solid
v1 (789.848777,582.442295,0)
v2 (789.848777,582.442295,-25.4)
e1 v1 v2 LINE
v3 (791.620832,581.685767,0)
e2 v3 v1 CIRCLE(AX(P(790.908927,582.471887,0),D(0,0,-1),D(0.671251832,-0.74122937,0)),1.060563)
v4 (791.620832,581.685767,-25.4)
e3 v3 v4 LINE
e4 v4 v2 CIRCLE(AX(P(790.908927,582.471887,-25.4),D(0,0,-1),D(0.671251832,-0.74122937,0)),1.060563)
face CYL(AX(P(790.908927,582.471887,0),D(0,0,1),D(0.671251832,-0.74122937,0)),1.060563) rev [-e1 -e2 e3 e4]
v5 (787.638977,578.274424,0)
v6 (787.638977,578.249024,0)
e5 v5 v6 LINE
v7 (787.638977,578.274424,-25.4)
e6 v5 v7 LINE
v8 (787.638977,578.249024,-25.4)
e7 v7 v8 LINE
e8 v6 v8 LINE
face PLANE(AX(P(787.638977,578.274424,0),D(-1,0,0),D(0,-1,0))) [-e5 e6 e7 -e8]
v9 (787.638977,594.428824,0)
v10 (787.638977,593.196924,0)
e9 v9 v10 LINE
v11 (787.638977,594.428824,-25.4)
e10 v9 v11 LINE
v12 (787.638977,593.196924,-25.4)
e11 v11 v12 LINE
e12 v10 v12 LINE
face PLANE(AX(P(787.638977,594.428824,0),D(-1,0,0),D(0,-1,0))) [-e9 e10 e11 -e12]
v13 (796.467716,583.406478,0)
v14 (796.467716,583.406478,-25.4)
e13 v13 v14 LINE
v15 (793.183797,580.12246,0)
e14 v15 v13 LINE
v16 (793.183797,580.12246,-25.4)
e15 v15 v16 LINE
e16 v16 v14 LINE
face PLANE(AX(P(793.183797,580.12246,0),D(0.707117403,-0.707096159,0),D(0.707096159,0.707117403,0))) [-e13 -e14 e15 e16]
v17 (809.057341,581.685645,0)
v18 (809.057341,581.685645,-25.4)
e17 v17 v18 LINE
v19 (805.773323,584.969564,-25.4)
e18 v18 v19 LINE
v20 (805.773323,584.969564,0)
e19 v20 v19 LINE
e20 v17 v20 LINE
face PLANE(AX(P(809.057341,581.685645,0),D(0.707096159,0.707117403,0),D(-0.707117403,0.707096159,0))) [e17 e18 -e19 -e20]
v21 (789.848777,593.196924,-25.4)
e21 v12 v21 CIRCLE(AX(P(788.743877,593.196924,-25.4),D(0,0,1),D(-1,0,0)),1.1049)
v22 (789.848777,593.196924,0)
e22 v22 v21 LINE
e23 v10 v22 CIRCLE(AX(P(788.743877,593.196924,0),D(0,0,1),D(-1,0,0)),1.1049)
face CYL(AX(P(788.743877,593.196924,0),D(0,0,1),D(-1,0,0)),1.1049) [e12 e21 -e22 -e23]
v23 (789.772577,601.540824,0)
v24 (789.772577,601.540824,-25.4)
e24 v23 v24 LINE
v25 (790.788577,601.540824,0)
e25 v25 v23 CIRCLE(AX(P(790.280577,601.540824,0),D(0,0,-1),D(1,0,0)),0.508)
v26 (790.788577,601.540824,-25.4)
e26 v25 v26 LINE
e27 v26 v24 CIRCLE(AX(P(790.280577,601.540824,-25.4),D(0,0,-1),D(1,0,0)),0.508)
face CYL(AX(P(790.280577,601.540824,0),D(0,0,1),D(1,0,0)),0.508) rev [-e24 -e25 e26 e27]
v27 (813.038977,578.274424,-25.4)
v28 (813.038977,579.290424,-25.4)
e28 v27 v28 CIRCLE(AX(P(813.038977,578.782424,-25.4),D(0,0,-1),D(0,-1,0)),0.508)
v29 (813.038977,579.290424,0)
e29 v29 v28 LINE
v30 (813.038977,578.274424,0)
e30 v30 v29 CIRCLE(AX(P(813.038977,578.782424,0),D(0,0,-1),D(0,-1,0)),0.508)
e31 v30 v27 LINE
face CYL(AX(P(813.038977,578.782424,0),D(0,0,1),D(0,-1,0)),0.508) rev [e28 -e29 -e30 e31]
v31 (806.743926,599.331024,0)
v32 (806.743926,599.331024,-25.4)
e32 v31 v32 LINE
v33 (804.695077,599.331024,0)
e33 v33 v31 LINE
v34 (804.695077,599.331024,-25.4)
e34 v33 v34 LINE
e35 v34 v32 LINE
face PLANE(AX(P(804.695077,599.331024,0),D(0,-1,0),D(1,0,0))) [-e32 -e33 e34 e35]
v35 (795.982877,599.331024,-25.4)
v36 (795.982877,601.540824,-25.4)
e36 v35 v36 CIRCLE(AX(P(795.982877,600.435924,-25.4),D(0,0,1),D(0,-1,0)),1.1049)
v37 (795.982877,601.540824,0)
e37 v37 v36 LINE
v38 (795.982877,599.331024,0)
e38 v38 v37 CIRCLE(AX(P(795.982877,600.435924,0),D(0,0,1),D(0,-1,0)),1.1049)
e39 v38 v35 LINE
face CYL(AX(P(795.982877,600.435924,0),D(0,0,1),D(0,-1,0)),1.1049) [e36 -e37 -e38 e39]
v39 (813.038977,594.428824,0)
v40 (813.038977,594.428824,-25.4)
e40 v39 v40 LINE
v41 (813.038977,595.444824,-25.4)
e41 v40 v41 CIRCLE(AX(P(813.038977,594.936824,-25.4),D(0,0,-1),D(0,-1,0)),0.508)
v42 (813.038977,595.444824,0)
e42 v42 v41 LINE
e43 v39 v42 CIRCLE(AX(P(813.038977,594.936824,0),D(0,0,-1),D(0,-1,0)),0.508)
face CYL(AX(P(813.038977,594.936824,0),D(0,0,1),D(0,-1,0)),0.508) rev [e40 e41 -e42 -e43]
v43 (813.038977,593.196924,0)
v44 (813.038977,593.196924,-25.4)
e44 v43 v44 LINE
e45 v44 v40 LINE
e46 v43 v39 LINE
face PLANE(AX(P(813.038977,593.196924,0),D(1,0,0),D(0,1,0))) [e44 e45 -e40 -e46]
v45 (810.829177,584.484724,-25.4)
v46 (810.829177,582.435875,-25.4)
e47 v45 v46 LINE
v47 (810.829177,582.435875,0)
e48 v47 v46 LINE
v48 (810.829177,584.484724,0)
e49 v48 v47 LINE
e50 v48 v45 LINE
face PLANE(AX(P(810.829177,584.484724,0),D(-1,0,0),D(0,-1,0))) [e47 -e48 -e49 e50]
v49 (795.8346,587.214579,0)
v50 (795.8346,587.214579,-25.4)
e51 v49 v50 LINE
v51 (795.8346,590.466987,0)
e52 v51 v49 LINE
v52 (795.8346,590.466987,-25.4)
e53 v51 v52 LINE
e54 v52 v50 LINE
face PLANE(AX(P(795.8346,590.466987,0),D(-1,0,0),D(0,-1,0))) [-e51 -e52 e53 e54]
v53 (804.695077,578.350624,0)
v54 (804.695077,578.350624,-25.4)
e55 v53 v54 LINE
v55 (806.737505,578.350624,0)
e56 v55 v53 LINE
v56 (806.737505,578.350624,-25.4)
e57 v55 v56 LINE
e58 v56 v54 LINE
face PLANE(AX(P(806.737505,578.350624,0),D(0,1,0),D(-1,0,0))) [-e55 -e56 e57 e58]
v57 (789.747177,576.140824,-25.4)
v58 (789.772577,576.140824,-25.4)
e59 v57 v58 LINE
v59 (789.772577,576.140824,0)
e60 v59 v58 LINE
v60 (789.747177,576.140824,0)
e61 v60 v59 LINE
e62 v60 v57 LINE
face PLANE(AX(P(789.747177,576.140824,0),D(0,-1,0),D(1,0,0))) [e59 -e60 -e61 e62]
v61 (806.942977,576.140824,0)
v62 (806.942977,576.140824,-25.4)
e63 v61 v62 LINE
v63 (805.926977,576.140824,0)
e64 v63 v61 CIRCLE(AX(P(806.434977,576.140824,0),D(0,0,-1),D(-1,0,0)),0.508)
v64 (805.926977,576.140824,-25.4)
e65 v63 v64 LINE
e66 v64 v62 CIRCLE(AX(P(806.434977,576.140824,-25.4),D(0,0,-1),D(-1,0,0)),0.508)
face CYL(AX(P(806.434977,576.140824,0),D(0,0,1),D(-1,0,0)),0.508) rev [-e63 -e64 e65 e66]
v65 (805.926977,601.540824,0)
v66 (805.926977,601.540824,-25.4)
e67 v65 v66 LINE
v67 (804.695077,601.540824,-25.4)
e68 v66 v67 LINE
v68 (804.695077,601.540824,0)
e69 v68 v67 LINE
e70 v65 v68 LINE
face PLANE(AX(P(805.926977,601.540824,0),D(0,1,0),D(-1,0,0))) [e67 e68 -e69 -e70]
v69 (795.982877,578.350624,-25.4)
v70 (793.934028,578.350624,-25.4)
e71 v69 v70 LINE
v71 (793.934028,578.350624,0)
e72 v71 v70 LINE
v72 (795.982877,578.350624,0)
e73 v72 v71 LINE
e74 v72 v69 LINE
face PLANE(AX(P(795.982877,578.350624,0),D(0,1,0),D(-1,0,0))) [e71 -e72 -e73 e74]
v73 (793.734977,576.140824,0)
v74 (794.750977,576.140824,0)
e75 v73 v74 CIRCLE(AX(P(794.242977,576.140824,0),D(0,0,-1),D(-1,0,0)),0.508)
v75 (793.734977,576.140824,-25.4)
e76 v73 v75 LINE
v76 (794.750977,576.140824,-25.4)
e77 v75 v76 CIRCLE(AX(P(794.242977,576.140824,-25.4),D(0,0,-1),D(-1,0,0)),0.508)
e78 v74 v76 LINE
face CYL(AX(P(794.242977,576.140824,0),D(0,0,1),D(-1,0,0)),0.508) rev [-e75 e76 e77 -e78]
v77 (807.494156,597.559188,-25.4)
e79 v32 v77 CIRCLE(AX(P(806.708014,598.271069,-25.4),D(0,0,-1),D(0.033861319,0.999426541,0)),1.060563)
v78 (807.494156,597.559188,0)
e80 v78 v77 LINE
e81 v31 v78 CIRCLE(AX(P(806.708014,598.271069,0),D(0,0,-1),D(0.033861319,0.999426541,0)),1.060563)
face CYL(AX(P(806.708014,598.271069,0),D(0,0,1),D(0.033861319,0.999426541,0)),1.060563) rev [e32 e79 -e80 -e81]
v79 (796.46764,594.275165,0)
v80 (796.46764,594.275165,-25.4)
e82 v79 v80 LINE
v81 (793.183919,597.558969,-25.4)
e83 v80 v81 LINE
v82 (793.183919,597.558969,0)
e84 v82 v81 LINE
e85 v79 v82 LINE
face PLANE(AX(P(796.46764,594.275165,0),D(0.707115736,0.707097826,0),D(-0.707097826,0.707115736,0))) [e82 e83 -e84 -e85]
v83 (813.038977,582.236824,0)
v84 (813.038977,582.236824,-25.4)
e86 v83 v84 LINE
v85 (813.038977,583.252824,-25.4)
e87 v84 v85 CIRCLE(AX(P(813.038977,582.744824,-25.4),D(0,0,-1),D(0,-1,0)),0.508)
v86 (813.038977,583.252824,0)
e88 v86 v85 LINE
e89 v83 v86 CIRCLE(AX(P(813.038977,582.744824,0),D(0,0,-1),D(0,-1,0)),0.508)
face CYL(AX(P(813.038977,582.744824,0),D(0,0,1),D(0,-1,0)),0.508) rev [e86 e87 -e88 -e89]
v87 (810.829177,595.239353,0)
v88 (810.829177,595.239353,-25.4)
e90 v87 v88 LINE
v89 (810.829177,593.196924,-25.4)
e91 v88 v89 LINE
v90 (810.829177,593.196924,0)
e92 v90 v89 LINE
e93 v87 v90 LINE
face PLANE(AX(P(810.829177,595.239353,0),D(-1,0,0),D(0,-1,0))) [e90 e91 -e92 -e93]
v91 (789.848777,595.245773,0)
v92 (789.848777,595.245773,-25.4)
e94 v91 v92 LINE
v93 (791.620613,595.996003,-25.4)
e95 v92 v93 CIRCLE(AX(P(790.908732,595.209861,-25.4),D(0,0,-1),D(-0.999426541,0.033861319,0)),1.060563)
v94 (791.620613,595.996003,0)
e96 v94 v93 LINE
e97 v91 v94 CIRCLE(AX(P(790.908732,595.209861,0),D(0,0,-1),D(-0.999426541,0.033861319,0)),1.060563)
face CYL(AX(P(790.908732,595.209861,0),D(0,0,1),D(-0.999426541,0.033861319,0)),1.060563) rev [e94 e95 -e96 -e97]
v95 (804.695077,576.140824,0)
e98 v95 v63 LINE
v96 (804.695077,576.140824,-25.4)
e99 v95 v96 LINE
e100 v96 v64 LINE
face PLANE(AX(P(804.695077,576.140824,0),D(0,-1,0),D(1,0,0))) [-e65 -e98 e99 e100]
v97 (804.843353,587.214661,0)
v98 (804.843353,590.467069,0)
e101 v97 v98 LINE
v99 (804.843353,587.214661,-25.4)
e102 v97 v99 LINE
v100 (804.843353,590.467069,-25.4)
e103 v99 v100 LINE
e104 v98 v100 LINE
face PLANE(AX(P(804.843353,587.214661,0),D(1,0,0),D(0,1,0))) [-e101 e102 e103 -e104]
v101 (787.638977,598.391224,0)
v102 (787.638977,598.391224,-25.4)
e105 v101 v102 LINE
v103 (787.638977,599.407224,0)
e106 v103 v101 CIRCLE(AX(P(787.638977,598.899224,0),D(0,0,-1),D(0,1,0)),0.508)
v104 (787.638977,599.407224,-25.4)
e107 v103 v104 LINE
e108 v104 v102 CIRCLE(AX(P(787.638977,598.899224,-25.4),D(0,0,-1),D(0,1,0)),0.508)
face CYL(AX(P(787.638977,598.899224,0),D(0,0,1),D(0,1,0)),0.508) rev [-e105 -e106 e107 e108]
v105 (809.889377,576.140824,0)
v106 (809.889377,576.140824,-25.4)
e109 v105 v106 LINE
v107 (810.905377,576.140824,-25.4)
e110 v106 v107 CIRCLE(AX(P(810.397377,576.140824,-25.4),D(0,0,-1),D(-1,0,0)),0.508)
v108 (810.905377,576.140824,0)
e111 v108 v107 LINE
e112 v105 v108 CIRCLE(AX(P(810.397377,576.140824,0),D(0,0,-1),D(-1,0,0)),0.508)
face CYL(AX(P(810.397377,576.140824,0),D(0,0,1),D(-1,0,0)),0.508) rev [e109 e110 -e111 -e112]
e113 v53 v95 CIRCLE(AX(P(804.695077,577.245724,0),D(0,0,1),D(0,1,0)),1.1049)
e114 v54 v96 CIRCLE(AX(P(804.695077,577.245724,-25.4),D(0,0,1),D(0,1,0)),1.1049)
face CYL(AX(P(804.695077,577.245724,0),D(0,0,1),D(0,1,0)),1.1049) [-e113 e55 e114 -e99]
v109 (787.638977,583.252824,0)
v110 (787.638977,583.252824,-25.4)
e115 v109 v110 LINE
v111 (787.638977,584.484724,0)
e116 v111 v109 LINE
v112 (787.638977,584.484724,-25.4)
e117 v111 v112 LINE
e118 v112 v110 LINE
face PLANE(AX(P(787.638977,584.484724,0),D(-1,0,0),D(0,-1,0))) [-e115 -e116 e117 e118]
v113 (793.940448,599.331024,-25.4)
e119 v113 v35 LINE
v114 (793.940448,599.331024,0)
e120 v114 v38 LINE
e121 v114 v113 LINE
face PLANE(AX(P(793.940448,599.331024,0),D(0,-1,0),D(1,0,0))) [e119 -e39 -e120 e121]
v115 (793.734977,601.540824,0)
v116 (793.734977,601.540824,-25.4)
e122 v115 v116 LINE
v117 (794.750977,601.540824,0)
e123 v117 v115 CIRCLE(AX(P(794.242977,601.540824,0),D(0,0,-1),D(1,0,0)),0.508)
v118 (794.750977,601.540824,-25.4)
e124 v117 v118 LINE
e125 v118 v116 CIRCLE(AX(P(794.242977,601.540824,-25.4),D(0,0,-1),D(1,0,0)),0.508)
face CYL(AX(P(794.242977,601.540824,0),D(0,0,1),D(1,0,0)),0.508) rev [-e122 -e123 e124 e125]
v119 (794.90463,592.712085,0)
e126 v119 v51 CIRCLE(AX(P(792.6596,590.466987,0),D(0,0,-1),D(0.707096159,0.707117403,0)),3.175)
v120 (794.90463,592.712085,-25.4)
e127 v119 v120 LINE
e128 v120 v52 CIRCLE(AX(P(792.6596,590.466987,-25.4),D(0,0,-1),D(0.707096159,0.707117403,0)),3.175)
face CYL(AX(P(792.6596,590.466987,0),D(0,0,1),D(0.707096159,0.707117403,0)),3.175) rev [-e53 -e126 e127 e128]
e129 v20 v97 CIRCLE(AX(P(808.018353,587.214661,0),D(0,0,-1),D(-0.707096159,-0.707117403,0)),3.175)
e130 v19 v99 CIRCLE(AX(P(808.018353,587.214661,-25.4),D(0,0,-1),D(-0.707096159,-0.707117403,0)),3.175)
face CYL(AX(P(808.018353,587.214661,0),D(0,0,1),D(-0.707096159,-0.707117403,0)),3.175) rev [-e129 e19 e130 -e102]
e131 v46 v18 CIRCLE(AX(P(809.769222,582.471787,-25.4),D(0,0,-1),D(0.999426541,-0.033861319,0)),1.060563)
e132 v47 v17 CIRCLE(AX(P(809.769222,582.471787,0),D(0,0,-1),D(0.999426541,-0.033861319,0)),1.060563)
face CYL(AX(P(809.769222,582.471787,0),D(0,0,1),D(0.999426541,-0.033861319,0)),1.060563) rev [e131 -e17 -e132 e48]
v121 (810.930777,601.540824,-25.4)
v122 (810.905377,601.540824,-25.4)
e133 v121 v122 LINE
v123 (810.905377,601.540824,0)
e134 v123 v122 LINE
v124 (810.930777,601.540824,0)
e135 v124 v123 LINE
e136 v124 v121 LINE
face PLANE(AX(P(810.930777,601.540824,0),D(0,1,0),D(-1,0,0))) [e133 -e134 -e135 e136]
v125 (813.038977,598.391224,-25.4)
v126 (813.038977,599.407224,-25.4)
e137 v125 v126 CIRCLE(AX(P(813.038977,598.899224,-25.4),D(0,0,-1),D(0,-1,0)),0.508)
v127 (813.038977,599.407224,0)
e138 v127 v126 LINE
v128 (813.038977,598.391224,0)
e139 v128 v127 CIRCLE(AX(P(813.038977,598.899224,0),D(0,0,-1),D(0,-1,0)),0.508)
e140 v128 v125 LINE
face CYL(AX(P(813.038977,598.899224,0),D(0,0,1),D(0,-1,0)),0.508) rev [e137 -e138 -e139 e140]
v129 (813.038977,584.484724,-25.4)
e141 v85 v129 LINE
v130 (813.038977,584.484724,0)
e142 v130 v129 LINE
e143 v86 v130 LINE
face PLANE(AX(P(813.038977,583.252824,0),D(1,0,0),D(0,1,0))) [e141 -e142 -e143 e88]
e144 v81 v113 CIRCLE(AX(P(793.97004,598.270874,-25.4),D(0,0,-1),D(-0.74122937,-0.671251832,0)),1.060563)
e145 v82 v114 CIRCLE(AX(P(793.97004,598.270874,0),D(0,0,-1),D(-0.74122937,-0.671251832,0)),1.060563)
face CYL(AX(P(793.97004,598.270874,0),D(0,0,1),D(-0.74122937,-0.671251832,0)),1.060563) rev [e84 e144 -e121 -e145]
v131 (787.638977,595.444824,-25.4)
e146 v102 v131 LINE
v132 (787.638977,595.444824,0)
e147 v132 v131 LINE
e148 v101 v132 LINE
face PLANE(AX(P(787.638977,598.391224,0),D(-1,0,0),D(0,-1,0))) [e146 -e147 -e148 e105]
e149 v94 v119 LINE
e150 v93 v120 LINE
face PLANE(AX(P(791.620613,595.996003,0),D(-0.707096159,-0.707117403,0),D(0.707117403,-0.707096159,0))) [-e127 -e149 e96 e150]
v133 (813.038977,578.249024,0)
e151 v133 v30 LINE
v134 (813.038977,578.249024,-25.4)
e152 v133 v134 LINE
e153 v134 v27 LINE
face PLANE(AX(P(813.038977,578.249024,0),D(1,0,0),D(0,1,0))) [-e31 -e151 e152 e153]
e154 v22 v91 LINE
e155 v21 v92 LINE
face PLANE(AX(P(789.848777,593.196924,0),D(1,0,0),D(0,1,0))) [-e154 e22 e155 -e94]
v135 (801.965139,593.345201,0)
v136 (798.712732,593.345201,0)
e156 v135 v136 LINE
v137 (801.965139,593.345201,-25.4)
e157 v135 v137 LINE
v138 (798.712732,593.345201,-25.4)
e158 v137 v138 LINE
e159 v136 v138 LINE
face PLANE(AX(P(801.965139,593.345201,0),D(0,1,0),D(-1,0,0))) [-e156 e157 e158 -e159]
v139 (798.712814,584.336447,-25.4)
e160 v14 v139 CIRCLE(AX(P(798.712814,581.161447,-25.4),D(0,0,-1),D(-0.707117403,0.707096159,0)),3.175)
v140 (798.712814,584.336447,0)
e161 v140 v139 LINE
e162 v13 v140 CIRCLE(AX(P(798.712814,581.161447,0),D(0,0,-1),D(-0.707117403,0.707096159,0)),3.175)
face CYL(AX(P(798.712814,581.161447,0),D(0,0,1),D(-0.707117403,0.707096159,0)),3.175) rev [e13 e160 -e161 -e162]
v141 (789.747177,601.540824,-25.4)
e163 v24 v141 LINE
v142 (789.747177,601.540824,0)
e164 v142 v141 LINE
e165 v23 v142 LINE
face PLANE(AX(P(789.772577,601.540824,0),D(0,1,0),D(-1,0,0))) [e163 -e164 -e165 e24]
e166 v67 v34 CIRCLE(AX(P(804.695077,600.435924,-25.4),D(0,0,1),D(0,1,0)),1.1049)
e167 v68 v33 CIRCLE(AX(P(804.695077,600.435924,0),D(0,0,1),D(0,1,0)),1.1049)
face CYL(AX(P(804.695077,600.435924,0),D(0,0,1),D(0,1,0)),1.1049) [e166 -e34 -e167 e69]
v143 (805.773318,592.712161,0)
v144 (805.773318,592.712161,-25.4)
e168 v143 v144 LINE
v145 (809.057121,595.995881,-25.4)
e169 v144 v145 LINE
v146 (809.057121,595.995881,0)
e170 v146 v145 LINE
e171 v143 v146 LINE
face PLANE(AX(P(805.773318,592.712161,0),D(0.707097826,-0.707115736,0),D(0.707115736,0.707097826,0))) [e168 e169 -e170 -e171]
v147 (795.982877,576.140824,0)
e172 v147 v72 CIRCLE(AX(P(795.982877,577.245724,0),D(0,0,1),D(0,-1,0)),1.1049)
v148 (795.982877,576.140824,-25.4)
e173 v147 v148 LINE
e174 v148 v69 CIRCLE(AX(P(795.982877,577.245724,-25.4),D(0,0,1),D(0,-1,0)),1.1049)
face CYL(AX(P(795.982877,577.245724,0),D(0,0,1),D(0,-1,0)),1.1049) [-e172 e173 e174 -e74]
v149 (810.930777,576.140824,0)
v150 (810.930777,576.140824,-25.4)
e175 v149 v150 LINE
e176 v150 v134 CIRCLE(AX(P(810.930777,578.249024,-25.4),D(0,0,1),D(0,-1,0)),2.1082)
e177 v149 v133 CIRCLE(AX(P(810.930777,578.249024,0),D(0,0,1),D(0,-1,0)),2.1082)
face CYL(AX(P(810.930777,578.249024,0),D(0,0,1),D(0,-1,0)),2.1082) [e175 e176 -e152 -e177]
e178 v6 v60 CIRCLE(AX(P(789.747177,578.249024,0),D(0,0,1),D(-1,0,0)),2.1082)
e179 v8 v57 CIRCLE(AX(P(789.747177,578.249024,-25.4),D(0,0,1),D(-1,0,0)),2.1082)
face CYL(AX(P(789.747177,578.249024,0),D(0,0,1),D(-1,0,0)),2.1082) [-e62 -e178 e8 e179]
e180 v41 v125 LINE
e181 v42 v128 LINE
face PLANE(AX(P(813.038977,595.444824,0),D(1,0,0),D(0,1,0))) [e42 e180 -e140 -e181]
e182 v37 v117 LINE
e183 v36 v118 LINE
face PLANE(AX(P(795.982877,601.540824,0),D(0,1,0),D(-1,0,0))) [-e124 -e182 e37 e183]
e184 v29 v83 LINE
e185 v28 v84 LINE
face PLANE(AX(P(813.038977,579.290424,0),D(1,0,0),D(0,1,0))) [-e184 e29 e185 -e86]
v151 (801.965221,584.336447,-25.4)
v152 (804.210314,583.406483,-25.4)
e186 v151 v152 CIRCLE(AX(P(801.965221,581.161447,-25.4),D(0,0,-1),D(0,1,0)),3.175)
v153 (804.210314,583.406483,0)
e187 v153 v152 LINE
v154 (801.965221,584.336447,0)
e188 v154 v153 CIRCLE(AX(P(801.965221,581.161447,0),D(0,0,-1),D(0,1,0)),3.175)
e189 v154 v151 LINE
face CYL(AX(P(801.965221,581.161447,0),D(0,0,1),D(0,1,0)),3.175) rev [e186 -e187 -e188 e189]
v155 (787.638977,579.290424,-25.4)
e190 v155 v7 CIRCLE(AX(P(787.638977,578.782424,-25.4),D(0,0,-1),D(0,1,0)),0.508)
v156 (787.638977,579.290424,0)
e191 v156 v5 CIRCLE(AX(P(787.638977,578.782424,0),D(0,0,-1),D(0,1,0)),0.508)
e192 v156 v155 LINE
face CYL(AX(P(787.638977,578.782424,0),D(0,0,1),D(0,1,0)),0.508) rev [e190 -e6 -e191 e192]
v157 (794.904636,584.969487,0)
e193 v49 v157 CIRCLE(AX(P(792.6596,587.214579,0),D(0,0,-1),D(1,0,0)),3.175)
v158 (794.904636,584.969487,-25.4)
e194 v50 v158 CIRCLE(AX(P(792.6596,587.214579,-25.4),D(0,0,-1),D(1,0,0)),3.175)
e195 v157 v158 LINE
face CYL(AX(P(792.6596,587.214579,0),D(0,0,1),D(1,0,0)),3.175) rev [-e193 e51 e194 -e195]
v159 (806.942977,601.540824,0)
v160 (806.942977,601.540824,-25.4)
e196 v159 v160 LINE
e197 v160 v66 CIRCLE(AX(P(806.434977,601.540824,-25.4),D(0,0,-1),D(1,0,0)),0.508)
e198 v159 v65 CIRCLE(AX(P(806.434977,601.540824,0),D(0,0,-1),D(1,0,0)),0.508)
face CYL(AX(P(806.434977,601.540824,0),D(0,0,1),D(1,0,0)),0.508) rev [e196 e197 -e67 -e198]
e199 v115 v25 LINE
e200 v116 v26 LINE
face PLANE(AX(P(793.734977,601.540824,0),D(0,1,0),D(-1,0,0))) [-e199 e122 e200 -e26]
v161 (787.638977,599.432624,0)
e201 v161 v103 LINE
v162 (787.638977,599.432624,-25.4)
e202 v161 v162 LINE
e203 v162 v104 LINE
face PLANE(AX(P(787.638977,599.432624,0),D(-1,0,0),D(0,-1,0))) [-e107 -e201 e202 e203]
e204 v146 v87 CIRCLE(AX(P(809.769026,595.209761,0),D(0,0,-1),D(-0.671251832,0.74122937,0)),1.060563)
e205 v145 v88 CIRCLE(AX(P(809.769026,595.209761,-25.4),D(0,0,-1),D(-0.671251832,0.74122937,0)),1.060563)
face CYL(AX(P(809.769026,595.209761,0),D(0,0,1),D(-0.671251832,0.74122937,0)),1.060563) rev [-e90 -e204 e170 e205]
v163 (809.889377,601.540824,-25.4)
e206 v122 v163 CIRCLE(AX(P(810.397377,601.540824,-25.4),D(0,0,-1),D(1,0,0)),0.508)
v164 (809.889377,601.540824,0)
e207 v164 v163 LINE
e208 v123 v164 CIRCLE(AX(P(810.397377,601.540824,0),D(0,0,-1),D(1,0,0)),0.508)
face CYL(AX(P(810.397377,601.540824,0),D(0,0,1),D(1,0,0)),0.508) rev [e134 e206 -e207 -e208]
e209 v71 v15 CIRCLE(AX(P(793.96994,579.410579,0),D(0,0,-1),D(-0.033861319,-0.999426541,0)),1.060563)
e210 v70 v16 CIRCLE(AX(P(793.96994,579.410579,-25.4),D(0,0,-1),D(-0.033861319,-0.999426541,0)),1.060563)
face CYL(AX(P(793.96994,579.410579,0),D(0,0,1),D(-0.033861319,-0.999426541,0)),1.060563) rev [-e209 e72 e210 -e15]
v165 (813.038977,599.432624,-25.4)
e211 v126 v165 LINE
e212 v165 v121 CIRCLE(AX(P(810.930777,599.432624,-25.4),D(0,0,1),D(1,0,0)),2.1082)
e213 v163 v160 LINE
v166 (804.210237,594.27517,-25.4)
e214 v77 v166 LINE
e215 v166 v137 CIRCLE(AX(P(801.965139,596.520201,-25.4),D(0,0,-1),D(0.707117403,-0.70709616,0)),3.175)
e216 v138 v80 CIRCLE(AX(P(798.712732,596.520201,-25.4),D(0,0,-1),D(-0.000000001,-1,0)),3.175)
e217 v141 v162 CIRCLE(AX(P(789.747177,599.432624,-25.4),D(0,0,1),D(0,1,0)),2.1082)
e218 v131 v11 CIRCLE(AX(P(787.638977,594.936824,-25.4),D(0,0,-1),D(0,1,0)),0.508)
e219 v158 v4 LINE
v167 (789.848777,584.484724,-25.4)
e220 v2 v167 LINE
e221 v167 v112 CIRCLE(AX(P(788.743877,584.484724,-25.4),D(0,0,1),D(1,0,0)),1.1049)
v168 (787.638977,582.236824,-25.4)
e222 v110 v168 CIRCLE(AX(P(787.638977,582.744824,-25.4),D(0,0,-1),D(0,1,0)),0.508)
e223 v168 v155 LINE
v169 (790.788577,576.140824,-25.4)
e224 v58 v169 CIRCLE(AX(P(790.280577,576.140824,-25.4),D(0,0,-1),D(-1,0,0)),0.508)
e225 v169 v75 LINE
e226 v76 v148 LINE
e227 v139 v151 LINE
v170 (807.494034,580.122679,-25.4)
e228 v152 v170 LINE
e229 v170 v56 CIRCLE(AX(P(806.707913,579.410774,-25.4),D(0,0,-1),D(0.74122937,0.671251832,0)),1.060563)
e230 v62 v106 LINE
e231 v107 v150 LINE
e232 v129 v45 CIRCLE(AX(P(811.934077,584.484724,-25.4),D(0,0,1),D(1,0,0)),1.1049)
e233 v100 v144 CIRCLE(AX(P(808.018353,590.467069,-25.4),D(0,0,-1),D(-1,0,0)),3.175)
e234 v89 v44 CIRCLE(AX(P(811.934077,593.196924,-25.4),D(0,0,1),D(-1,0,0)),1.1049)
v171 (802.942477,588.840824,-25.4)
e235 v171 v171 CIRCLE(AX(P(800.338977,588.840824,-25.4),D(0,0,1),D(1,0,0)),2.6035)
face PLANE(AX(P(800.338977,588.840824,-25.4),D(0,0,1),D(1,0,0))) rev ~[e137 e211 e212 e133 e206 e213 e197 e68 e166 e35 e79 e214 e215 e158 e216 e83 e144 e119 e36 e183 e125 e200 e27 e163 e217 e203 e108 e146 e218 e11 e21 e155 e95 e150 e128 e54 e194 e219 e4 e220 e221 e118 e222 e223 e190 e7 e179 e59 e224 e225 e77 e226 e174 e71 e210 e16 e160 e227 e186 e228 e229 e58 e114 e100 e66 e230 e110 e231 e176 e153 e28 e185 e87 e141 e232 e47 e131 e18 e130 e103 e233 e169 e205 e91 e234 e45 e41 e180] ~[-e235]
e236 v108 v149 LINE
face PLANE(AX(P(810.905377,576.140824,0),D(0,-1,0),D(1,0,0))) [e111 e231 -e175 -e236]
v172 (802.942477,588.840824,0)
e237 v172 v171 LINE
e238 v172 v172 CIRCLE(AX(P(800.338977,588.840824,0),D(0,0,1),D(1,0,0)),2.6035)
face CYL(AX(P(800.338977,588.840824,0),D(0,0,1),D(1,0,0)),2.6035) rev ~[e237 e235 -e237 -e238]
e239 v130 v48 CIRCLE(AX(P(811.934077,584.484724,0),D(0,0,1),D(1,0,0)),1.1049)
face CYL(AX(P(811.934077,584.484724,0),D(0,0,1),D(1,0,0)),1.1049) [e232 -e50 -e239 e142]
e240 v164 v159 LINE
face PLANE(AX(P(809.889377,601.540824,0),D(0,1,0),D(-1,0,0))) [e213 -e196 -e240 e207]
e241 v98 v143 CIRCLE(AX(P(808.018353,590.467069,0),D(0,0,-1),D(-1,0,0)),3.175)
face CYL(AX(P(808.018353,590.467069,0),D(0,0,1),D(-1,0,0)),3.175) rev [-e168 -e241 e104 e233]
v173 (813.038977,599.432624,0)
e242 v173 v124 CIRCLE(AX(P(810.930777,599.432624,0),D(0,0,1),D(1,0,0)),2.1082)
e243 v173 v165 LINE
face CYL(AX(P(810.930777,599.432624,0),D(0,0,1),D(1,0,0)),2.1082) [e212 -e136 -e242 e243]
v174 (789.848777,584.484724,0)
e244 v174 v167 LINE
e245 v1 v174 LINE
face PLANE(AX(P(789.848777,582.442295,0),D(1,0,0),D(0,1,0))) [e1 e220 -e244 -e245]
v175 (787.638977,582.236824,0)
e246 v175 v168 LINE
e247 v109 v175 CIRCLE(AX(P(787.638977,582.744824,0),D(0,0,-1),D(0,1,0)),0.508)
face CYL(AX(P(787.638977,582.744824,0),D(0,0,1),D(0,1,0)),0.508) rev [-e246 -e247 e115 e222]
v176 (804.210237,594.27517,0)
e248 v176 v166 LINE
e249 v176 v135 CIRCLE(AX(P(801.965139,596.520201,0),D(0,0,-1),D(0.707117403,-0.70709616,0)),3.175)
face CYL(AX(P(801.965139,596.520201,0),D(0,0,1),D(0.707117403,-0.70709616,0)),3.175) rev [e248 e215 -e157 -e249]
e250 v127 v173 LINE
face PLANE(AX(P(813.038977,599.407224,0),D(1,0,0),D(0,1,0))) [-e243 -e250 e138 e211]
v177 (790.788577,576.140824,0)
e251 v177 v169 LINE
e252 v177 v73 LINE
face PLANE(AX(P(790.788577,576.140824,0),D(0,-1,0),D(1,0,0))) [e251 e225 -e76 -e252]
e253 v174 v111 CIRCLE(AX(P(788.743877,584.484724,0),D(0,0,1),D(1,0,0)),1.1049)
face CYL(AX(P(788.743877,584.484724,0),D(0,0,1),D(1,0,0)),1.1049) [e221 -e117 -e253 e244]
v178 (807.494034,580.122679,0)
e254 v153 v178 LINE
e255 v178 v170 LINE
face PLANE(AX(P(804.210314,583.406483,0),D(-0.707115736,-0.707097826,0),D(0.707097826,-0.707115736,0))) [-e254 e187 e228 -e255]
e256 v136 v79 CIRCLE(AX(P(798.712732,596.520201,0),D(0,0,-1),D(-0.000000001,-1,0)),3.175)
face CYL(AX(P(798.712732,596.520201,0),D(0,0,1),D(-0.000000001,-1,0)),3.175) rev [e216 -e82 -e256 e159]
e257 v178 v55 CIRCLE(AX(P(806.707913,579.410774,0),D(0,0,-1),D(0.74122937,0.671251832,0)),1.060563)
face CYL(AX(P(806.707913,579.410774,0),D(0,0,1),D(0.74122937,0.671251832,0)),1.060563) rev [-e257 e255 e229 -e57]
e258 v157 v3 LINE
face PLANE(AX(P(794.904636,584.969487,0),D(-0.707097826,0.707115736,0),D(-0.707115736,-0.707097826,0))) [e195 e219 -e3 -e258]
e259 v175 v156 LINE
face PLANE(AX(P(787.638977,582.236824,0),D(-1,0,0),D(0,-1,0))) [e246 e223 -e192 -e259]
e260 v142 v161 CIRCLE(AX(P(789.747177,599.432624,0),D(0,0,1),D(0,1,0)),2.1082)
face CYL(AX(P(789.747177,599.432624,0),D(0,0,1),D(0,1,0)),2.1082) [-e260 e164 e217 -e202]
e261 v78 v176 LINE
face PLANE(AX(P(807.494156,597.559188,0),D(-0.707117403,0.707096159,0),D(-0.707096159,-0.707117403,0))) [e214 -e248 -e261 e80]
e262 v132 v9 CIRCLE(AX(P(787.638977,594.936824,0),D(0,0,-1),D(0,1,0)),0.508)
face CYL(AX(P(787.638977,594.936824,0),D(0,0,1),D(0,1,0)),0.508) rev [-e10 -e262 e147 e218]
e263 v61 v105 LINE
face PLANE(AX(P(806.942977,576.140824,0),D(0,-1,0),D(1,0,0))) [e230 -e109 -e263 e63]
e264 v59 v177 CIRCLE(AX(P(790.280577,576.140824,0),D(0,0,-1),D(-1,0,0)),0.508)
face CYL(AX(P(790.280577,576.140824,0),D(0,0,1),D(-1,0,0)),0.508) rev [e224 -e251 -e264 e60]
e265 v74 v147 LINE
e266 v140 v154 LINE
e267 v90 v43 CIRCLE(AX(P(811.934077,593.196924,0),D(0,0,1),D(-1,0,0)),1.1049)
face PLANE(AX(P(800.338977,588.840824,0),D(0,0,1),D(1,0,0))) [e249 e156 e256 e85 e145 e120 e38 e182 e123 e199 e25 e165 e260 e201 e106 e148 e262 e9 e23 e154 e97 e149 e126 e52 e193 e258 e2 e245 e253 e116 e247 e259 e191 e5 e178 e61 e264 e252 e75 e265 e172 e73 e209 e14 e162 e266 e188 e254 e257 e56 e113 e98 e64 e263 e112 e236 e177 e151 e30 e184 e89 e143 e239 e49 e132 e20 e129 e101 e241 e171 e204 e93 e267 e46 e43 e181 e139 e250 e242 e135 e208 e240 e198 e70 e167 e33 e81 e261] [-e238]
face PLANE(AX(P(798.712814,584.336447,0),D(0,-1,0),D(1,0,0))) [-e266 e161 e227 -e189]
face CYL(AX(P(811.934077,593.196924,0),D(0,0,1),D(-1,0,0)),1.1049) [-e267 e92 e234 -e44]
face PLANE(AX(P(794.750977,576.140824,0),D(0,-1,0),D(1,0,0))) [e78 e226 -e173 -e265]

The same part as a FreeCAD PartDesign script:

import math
import FreeCAD as App
import Part
import Sketcher
from FreeCAD import Vector
Q = App.Units.Quantity

doc = App.newDocument("Part")
body = doc.addObject("PartDesign::Body", "Body")

sketch1 = body.newObject("Sketcher::SketchObject", "Sketch")
sketch1.AttachmentSupport = (doc.getObject("XY_Plane"), [""])
sketch1.MapMode = "FlatFace"
sketch1.addGeometry([
    Part.LineSegment(Vector(813.038977, 579.290424, 0), Vector(813.038977, 582.236824, 0)),
    Part.ArcOfCircle(Part.Circle(Vector(813.038977, 582.744824, 0), Vector(0, 0, 1), 0.508), math.radians(90), math.radians(270)),
    Part.LineSegment(Vector(813.038977, 583.252824, 0), Vector(813.038977, 584.484724, 0)),
    Part.ArcOfCircle(Part.Circle(Vector(811.934077, 584.484724, 0), Vector(0, 0, 1), 1.1049), math.radians(0), math.radians(180)),
    Part.LineSegment(Vector(810.829177, 584.484724, 0), Vector(810.829177, 582.435875, 0)),
    Part.ArcOfCircle(Part.Circle(Vector(809.769222, 582.471787, 0), Vector(0, 0, 1), 1.060563), math.radians(-132.161999), math.radians(-1.940482)),
    Part.LineSegment(Vector(809.057341, 581.685645, 0), Vector(805.773323, 584.969564, 0)),
    Part.ArcOfCircle(Part.Circle(Vector(808.018353, 587.214661, 0), Vector(0, 0, 1), 3.175), math.radians(180), math.radians(225.000861)),
    Part.LineSegment(Vector(804.843353, 587.214661, 0), Vector(804.843353, 590.467069, 0)),
    Part.ArcOfCircle(Part.Circle(Vector(808.018353, 590.467069, 0), Vector(0, 0, 1), 3.175), math.radians(134.999274), math.radians(180)),
    Part.LineSegment(Vector(805.773318, 592.712161, 0), Vector(809.057121, 595.995881, 0)),
    Part.ArcOfCircle(Part.Circle(Vector(809.769026, 595.209761, 0), Vector(0, 0, 1), 1.060563), math.radians(1.598875), math.radians(132.163755)),
    Part.LineSegment(Vector(810.829177, 595.239353, 0), Vector(810.829177, 593.196924, 0)),
    Part.ArcOfCircle(Part.Circle(Vector(811.934077, 593.196924, 0), Vector(0, 0, 1), 1.1049), math.radians(180), math.radians(360)),
    Part.LineSegment(Vector(813.038977, 593.196924, 0), Vector(813.038977, 594.428824, 0)),
    Part.ArcOfCircle(Part.Circle(Vector(813.038977, 594.936824, 0), Vector(0, 0, 1), 0.508), math.radians(90), math.radians(270)),
    Part.LineSegment(Vector(813.038977, 595.444824, 0), Vector(813.038977, 598.391224, 0)),
    Part.ArcOfCircle(Part.Circle(Vector(813.038977, 598.899224, 0), Vector(0, 0, 1), 0.508), math.radians(90), math.radians(270)),
    Part.LineSegment(Vector(813.038977, 599.407224, 0), Vector(813.038977, 599.432624, 0)),
    Part.ArcOfCircle(Part.Circle(Vector(810.930777, 599.432624, 0), Vector(0, 0, 1), 2.1082), math.radians(0), math.radians(90)),
    Part.LineSegment(Vector(810.930777, 601.540824, 0), Vector(810.905377, 601.540824, 0)),
    Part.ArcOfCircle(Part.Circle(Vector(810.397377, 601.540824, 0), Vector(0, 0, 1), 0.508), math.radians(180), math.radians(360)),
    Part.LineSegment(Vector(809.889377, 601.540824, 0), Vector(806.942977, 601.540824, 0)),
    Part.ArcOfCircle(Part.Circle(Vector(806.434977, 601.540824, 0), Vector(0, 0, 1), 0.508), math.radians(180), math.radians(360)),
    Part.LineSegment(Vector(805.926977, 601.540824, 0), Vector(804.695077, 601.540824, 0)),
    Part.ArcOfCircle(Part.Circle(Vector(804.695077, 600.435924, 0), Vector(0, 0, 1), 1.1049), math.radians(90), math.radians(270)),
    Part.LineSegment(Vector(804.695077, 599.331024, 0), Vector(806.743926, 599.331024, 0)),
    Part.ArcOfCircle(Part.Circle(Vector(806.708014, 598.271069, 0), Vector(0, 0, 1), 1.060563), math.radians(-42.161999), math.radians(88.059518)),
    Part.LineSegment(Vector(807.494156, 597.559188, 0), Vector(804.210237, 594.27517, 0)),
    Part.ArcOfCircle(Part.Circle(Vector(801.965139, 596.520201, 0), Vector(0, 0, 1), 3.175), math.radians(-90), math.radians(-44.999139)),
    Part.LineSegment(Vector(801.965139, 593.345201, 0), Vector(798.712732, 593.345201, 0)),
    Part.ArcOfCircle(Part.Circle(Vector(798.712732, 596.520201, 0), Vector(0, 0, 1), 3.175), math.radians(-135.000726), math.radians(-90)),
    Part.LineSegment(Vector(796.46764, 594.275165, 0), Vector(793.183919, 597.558969, 0)),
    Part.ArcOfCircle(Part.Circle(Vector(793.97004, 598.270874, 0), Vector(0, 0, 1), 1.060563), math.radians(91.598875), math.radians(222.163755)),
    Part.LineSegment(Vector(793.940448, 599.331024, 0), Vector(795.982877, 599.331024, 0)),
    Part.ArcOfCircle(Part.Circle(Vector(795.982877, 600.435924, 0), Vector(0, 0, 1), 1.1049), math.radians(-90), math.radians(90)),
    Part.LineSegment(Vector(795.982877, 601.540824, 0), Vector(794.750977, 601.540824, 0)),
    Part.ArcOfCircle(Part.Circle(Vector(794.242977, 601.540824, 0), Vector(0, 0, 1), 0.508), math.radians(180), math.radians(360)),
    Part.LineSegment(Vector(793.734977, 601.540824, 0), Vector(790.788577, 601.540824, 0)),
    Part.ArcOfCircle(Part.Circle(Vector(790.280577, 601.540824, 0), Vector(0, 0, 1), 0.508), math.radians(180), math.radians(360)),
    Part.LineSegment(Vector(789.772577, 601.540824, 0), Vector(789.747177, 601.540824, 0)),
    Part.ArcOfCircle(Part.Circle(Vector(789.747177, 599.432624, 0), Vector(0, 0, 1), 2.1082), math.radians(90), math.radians(180)),
    Part.LineSegment(Vector(787.638977, 599.432624, 0), Vector(787.638977, 599.407224, 0)),
    Part.ArcOfCircle(Part.Circle(Vector(787.638977, 598.899224, 0), Vector(0, 0, 1), 0.508), math.radians(-90), math.radians(90)),
    Part.LineSegment(Vector(787.638977, 598.391224, 0), Vector(787.638977, 595.444824, 0)),
    Part.ArcOfCircle(Part.Circle(Vector(787.638977, 594.936824, 0), Vector(0, 0, 1), 0.508), math.radians(-90), math.radians(90)),
    Part.LineSegment(Vector(787.638977, 594.428824, 0), Vector(787.638977, 593.196924, 0)),
    Part.ArcOfCircle(Part.Circle(Vector(788.743877, 593.196924, 0), Vector(0, 0, 1), 1.1049), math.radians(180), math.radians(360)),
    Part.LineSegment(Vector(789.848777, 593.196924, 0), Vector(789.848777, 595.245773, 0)),
    Part.ArcOfCircle(Part.Circle(Vector(790.908732, 595.209861, 0), Vector(0, 0, 1), 1.060563), math.radians(47.838001), math.radians(178.059518)),
    Part.LineSegment(Vector(791.620613, 595.996003, 0), Vector(794.90463, 592.712085, 0)),
    Part.ArcOfCircle(Part.Circle(Vector(792.6596, 590.466987, 0), Vector(0, 0, 1), 3.175), math.radians(0), math.radians(45.000861)),
    Part.LineSegment(Vector(795.8346, 590.466987, 0), Vector(795.8346, 587.214579, 0)),
    Part.ArcOfCircle(Part.Circle(Vector(792.6596, 587.214579, 0), Vector(0, 0, 1), 3.175), math.radians(-45.000726), math.radians(0)),
    Part.LineSegment(Vector(794.904636, 584.969487, 0), Vector(791.620832, 581.685767, 0)),
    Part.ArcOfCircle(Part.Circle(Vector(790.908927, 582.471887, 0), Vector(0, 0, 1), 1.060563), math.radians(-178.401125), math.radians(-47.836245)),
    Part.LineSegment(Vector(789.848777, 582.442295, 0), Vector(789.848777, 584.484724, 0)),
    Part.ArcOfCircle(Part.Circle(Vector(788.743877, 584.484724, 0), Vector(0, 0, 1), 1.1049), math.radians(0), math.radians(180)),
    Part.LineSegment(Vector(787.638977, 584.484724, 0), Vector(787.638977, 583.252824, 0)),
    Part.ArcOfCircle(Part.Circle(Vector(787.638977, 582.744824, 0), Vector(0, 0, 1), 0.508), math.radians(-90), math.radians(90)),
    Part.LineSegment(Vector(787.638977, 582.236824, 0), Vector(787.638977, 579.290424, 0)),
    Part.ArcOfCircle(Part.Circle(Vector(787.638977, 578.782424, 0), Vector(0, 0, 1), 0.508), math.radians(-90), math.radians(90)),
    Part.LineSegment(Vector(787.638977, 578.274424, 0), Vector(787.638977, 578.249024, 0)),
    Part.ArcOfCircle(Part.Circle(Vector(789.747177, 578.249024, 0), Vector(0, 0, 1), 2.1082), math.radians(180), math.radians(270)),
    Part.LineSegment(Vector(789.747177, 576.140824, 0), Vector(789.772577, 576.140824, 0)),
    Part.ArcOfCircle(Part.Circle(Vector(790.280577, 576.140824, 0), Vector(0, 0, 1), 0.508), math.radians(0), math.radians(180)),
    Part.LineSegment(Vector(790.788577, 576.140824, 0), Vector(793.734977, 576.140824, 0)),
    Part.ArcOfCircle(Part.Circle(Vector(794.242977, 576.140824, 0), Vector(0, 0, 1), 0.508), math.radians(0), math.radians(180)),
    Part.LineSegment(Vector(794.750977, 576.140824, 0), Vector(795.982877, 576.140824, 0)),
    Part.ArcOfCircle(Part.Circle(Vector(795.982877, 577.245724, 0), Vector(0, 0, 1), 1.1049), math.radians(-90), math.radians(90)),
    Part.LineSegment(Vector(795.982877, 578.350624, 0), Vector(793.934028, 578.350624, 0)),
    Part.ArcOfCircle(Part.Circle(Vector(793.96994, 579.410579, 0), Vector(0, 0, 1), 1.060563), math.radians(137.838001), math.radians(268.059518)),
    Part.LineSegment(Vector(793.183797, 580.12246, 0), Vector(796.467716, 583.406478, 0)),
    Part.ArcOfCircle(Part.Circle(Vector(798.712814, 581.161447, 0), Vector(0, 0, 1), 3.175), math.radians(90), math.radians(135.000861)),
    Part.LineSegment(Vector(798.712814, 584.336447, 0), Vector(801.965221, 584.336447, 0)),
    Part.ArcOfCircle(Part.Circle(Vector(801.965221, 581.161447, 0), Vector(0, 0, 1), 3.175), math.radians(44.999274), math.radians(90)),
    Part.LineSegment(Vector(804.210314, 583.406483, 0), Vector(807.494034, 580.122679, 0)),
    Part.ArcOfCircle(Part.Circle(Vector(806.707913, 579.410774, 0), Vector(0, 0, 1), 1.060563), math.radians(-88.401125), math.radians(42.163755)),
    Part.LineSegment(Vector(806.737505, 578.350624, 0), Vector(804.695077, 578.350624, 0)),
    Part.ArcOfCircle(Part.Circle(Vector(804.695077, 577.245724, 0), Vector(0, 0, 1), 1.1049), math.radians(90), math.radians(270)),
    Part.LineSegment(Vector(804.695077, 576.140824, 0), Vector(805.926977, 576.140824, 0)),
    Part.ArcOfCircle(Part.Circle(Vector(806.434977, 576.140824, 0), Vector(0, 0, 1), 0.508), math.radians(0), math.radians(180)),
    Part.LineSegment(Vector(806.942977, 576.140824, 0), Vector(809.889377, 576.140824, 0)),
    Part.ArcOfCircle(Part.Circle(Vector(810.397377, 576.140824, 0), Vector(0, 0, 1), 0.508), math.radians(0), math.radians(180)),
    Part.LineSegment(Vector(810.905377, 576.140824, 0), Vector(810.930777, 576.140824, 0)),
    Part.ArcOfCircle(Part.Circle(Vector(810.930777, 578.249024, 0), Vector(0, 0, 1), 2.1082), math.radians(-90), math.radians(0)),
    Part.LineSegment(Vector(813.038977, 578.249024, 0), Vector(813.038977, 578.274424, 0)),
    Part.ArcOfCircle(Part.Circle(Vector(813.038977, 578.782424, 0), Vector(0, 0, 1), 0.508), math.radians(90), math.radians(270)),
    Part.Circle(Vector(800.338977, 588.840824, 0), Vector(0, 0, 1), 2.6035),
], False)
sketch1.addConstraint([
    Sketcher.Constraint("Coincident", 0, 2, 1, 2),
    Sketcher.Constraint("Coincident", 1, 1, 2, 1),
    Sketcher.Constraint("Tangent", 2, 2, 3, 1),
    Sketcher.Constraint("Tangent", 3, 2, 4, 1),
    Sketcher.Constraint("Coincident", 4, 2, 5, 2),
    Sketcher.Constraint("Coincident", 5, 1, 6, 1),
    Sketcher.Constraint("Tangent", 6, 2, 7, 2),
    Sketcher.Constraint("Tangent", 7, 1, 8, 1),
    Sketcher.Constraint("Tangent", 8, 2, 9, 2),
    Sketcher.Constraint("Tangent", 9, 1, 10, 1),
    Sketcher.Constraint("Coincident", 10, 2, 11, 2),
    Sketcher.Constraint("Coincident", 11, 1, 12, 1),
    Sketcher.Constraint("Tangent", 12, 2, 13, 1),
    Sketcher.Constraint("Tangent", 13, 2, 14, 1),
    Sketcher.Constraint("Coincident", 14, 2, 15, 2),
    Sketcher.Constraint("Coincident", 15, 1, 16, 1),
    Sketcher.Constraint("Coincident", 16, 2, 17, 2),
    Sketcher.Constraint("Coincident", 17, 1, 18, 1),
    Sketcher.Constraint("Tangent", 18, 2, 19, 1),
    Sketcher.Constraint("Tangent", 19, 2, 20, 1),
    Sketcher.Constraint("Coincident", 20, 2, 21, 2),
    Sketcher.Constraint("Coincident", 21, 1, 22, 1),
    Sketcher.Constraint("Coincident", 22, 2, 23, 2),
    Sketcher.Constraint("Coincident", 23, 1, 24, 1),
    Sketcher.Constraint("Tangent", 24, 2, 25, 1),
    Sketcher.Constraint("Tangent", 25, 2, 26, 1),
    Sketcher.Constraint("Coincident", 26, 2, 27, 2),
    Sketcher.Constraint("Coincident", 27, 1, 28, 1),
    Sketcher.Constraint("Tangent", 28, 2, 29, 2),
    Sketcher.Constraint("Tangent", 29, 1, 30, 1),
    Sketcher.Constraint("Tangent", 30, 2, 31, 2),
    Sketcher.Constraint("Tangent", 31, 1, 32, 1),
    Sketcher.Constraint("Coincident", 32, 2, 33, 2),
    Sketcher.Constraint("Coincident", 33, 1, 34, 1),
    Sketcher.Constraint("Tangent", 34, 2, 35, 1),
    Sketcher.Constraint("Tangent", 35, 2, 36, 1),
    Sketcher.Constraint("Coincident", 36, 2, 37, 2),
    Sketcher.Constraint("Coincident", 37, 1, 38, 1),
    Sketcher.Constraint("Coincident", 38, 2, 39, 2),
    Sketcher.Constraint("Coincident", 39, 1, 40, 1),
    Sketcher.Constraint("Tangent", 40, 2, 41, 1),
    Sketcher.Constraint("Tangent", 41, 2, 42, 1),
    Sketcher.Constraint("Coincident", 42, 2, 43, 2),
    Sketcher.Constraint("Coincident", 43, 1, 44, 1),
    Sketcher.Constraint("Coincident", 44, 2, 45, 2),
    Sketcher.Constraint("Coincident", 45, 1, 46, 1),
    Sketcher.Constraint("Tangent", 46, 2, 47, 1),
    Sketcher.Constraint("Tangent", 47, 2, 48, 1),
    Sketcher.Constraint("Coincident", 48, 2, 49, 2),
    Sketcher.Constraint("Coincident", 49, 1, 50, 1),
    Sketcher.Constraint("Tangent", 50, 2, 51, 2),
    Sketcher.Constraint("Tangent", 51, 1, 52, 1),
    Sketcher.Constraint("Tangent", 52, 2, 53, 2),
    Sketcher.Constraint("Tangent", 53, 1, 54, 1),
    Sketcher.Constraint("Coincident", 54, 2, 55, 2),
    Sketcher.Constraint("Coincident", 55, 1, 56, 1),
    Sketcher.Constraint("Tangent", 56, 2, 57, 1),
    Sketcher.Constraint("Tangent", 57, 2, 58, 1),
    Sketcher.Constraint("Coincident", 58, 2, 59, 2),
    Sketcher.Constraint("Coincident", 59, 1, 60, 1),
    Sketcher.Constraint("Coincident", 60, 2, 61, 2),
    Sketcher.Constraint("Coincident", 61, 1, 62, 1),
    Sketcher.Constraint("Tangent", 62, 2, 63, 1),
    Sketcher.Constraint("Tangent", 63, 2, 64, 1),
    Sketcher.Constraint("Coincident", 64, 2, 65, 2),
    Sketcher.Constraint("Coincident", 65, 1, 66, 1),
    Sketcher.Constraint("Coincident", 66, 2, 67, 2),
    Sketcher.Constraint("Coincident", 67, 1, 68, 1),
    Sketcher.Constraint("Tangent", 68, 2, 69, 1),
    Sketcher.Constraint("Tangent", 69, 2, 70, 1),
    Sketcher.Constraint("Coincident", 70, 2, 71, 2),
    Sketcher.Constraint("Coincident", 71, 1, 72, 1),
    Sketcher.Constraint("Tangent", 72, 2, 73, 2),
    Sketcher.Constraint("Tangent", 73, 1, 74, 1),
    Sketcher.Constraint("Tangent", 74, 2, 75, 2),
    Sketcher.Constraint("Tangent", 75, 1, 76, 1),
    Sketcher.Constraint("Coincident", 76, 2, 77, 2),
    Sketcher.Constraint("Coincident", 77, 1, 78, 1),
    Sketcher.Constraint("Tangent", 78, 2, 79, 1),
    Sketcher.Constraint("Tangent", 79, 2, 80, 1),
    Sketcher.Constraint("Coincident", 80, 2, 81, 2),
    Sketcher.Constraint("Coincident", 81, 1, 82, 1),
    Sketcher.Constraint("Coincident", 82, 2, 83, 2),
    Sketcher.Constraint("Coincident", 83, 1, 84, 1),
    Sketcher.Constraint("Tangent", 84, 2, 85, 1),
    Sketcher.Constraint("Tangent", 85, 2, 86, 1),
    Sketcher.Constraint("Coincident", 86, 2, 87, 2),
    Sketcher.Constraint("Coincident", 87, 1, 0, 1),
    Sketcher.Constraint("Vertical", 0),
    Sketcher.Constraint("Vertical", 2),
    Sketcher.Constraint("Vertical", 4),
    Sketcher.Constraint("Vertical", 8),
    Sketcher.Constraint("Vertical", 12),
    Sketcher.Constraint("Vertical", 14),
    Sketcher.Constraint("Vertical", 16),
    Sketcher.Constraint("Vertical", 18),
    Sketcher.Constraint("Horizontal", 20),
    Sketcher.Constraint("Horizontal", 22),
    Sketcher.Constraint("Horizontal", 24),
    Sketcher.Constraint("Horizontal", 26),
    Sketcher.Constraint("Horizontal", 30),
    Sketcher.Constraint("Horizontal", 34),
    Sketcher.Constraint("Horizontal", 36),
    Sketcher.Constraint("Horizontal", 38),
    Sketcher.Constraint("Horizontal", 40),
    Sketcher.Constraint("Vertical", 42),
    Sketcher.Constraint("Vertical", 44),
    Sketcher.Constraint("Vertical", 46),
    Sketcher.Constraint("Vertical", 48),
    Sketcher.Constraint("Vertical", 52),
    Sketcher.Constraint("Vertical", 56),
    Sketcher.Constraint("Vertical", 58),
    Sketcher.Constraint("Vertical", 60),
    Sketcher.Constraint("Vertical", 62),
    Sketcher.Constraint("Horizontal", 64),
    Sketcher.Constraint("Horizontal", 66),
    Sketcher.Constraint("Horizontal", 68),
    Sketcher.Constraint("Horizontal", 70),
    Sketcher.Constraint("Horizontal", 74),
    Sketcher.Constraint("Horizontal", 78),
    Sketcher.Constraint("Horizontal", 80),
    Sketcher.Constraint("Horizontal", 82),
    Sketcher.Constraint("Horizontal", 84),
    Sketcher.Constraint("Vertical", 86),
    Sketcher.Constraint("Equal", 7, 9),
    Sketcher.Constraint("Equal", 5, 11),
    Sketcher.Constraint("Equal", 3, 13),
    Sketcher.Constraint("Equal", 1, 15),
    Sketcher.Constraint("Equal", 15, 17),
    Sketcher.Constraint("Equal", 17, 21),
    Sketcher.Constraint("Equal", 21, 23),
    Sketcher.Constraint("Equal", 13, 25),
    Sketcher.Constraint("Equal", 11, 27),
    Sketcher.Constraint("Equal", 9, 29),
    Sketcher.Constraint("Equal", 29, 31),
    Sketcher.Constraint("Equal", 27, 33),
    Sketcher.Constraint("Equal", 25, 35),
    Sketcher.Constraint("Equal", 23, 37),
    Sketcher.Constraint("Equal", 37, 39),
    Sketcher.Constraint("Equal", 19, 41),
    Sketcher.Constraint("Equal", 39, 43),
    Sketcher.Constraint("Equal", 43, 45),
    Sketcher.Constraint("Equal", 35, 47),
    Sketcher.Constraint("Equal", 33, 49),
    Sketcher.Constraint("Equal", 31, 51),
    Sketcher.Constraint("Equal", 51, 53),
    Sketcher.Constraint("Equal", 49, 55),
    Sketcher.Constraint("Equal", 47, 57),
    Sketcher.Constraint("Equal", 45, 59),
    Sketcher.Constraint("Equal", 59, 61),
    Sketcher.Constraint("Equal", 41, 63),
    Sketcher.Constraint("Equal", 61, 65),
    Sketcher.Constraint("Equal", 65, 67),
    Sketcher.Constraint("Equal", 57, 69),
    Sketcher.Constraint("Equal", 55, 71),
    Sketcher.Constraint("Equal", 53, 73),
    Sketcher.Constraint("Equal", 73, 75),
    Sketcher.Constraint("Equal", 71, 77),
    Sketcher.Constraint("Equal", 69, 79),
    Sketcher.Constraint("Equal", 67, 81),
    Sketcher.Constraint("Equal", 81, 83),
    Sketcher.Constraint("Equal", 63, 85),
    Sketcher.Constraint("Equal", 83, 87),
    Sketcher.Constraint("Perpendicular", 6, 28),
    Sketcher.Constraint("Perpendicular", 10, 32),
    Sketcher.Constraint("Perpendicular", 28, 50),
    Sketcher.Constraint("Perpendicular", 32, 54),
    Sketcher.Constraint("Perpendicular", 50, 72),
    Sketcher.Constraint("Perpendicular", 54, 76),
    Sketcher.Constraint("Horizontal", 21, 3, 23, 3),
    Sketcher.Constraint("Horizontal", 25, 3, 35, 3),
    Sketcher.Constraint("Horizontal", 23, 3, 37, 3),
    Sketcher.Constraint("Horizontal", 37, 3, 39, 3),
    Sketcher.Constraint("Horizontal", 19, 3, 41, 3),
    Sketcher.Constraint("Horizontal", 17, 3, 43, 3),
    Sketcher.Constraint("Horizontal", 15, 3, 45, 3),
    Sketcher.Constraint("Horizontal", 13, 3, 47, 3),
    Sketcher.Constraint("Horizontal", 3, 3, 57, 3),
    Sketcher.Constraint("Horizontal", 1, 3, 59, 3),
    Sketcher.Constraint("Horizontal", 65, 3, 67, 3),
    Sketcher.Constraint("Horizontal", 69, 3, 79, 3),
    Sketcher.Constraint("Horizontal", 67, 3, 81, 3),
    Sketcher.Constraint("Horizontal", 81, 3, 83, 3),
    Sketcher.Constraint("Horizontal", 63, 3, 85, 3),
    Sketcher.Constraint("Horizontal", 61, 3, 87, 3),
    Sketcher.Constraint("Horizontal", 39, 3, 19, 2),
    Sketcher.Constraint("Horizontal", 20, 2, 21, 1),
    Sketcher.Constraint("Horizontal", 22, 2, 23, 1),
    Sketcher.Constraint("Horizontal", 36, 2, 37, 1),
    Sketcher.Constraint("Horizontal", 83, 3, 63, 2),
    Sketcher.Constraint("Horizontal", 64, 2, 65, 1),
    Sketcher.Constraint("Horizontal", 66, 2, 67, 1),
    Sketcher.Constraint("Horizontal", 80, 2, 81, 1),
    Sketcher.Constraint("Vertical", 3, 3, 13, 3),
    Sketcher.Constraint("Vertical", 1, 3, 15, 3),
    Sketcher.Constraint("Vertical", 15, 3, 17, 3),
    Sketcher.Constraint("Vertical", 43, 3, 45, 3),
    Sketcher.Constraint("Vertical", 47, 3, 57, 3),
    Sketcher.Constraint("Vertical", 45, 3, 59, 3),
    Sketcher.Constraint("Vertical", 59, 3, 61, 3),
    Sketcher.Constraint("Vertical", 41, 3, 63, 3),
    Sketcher.Constraint("Vertical", 39, 3, 65, 3),
    Sketcher.Constraint("Vertical", 37, 3, 67, 3),
    Sketcher.Constraint("Vertical", 35, 3, 69, 3),
    Sketcher.Constraint("Vertical", 25, 3, 79, 3),
    Sketcher.Constraint("Vertical", 23, 3, 81, 3),
    Sketcher.Constraint("Vertical", 21, 3, 83, 3),
    Sketcher.Constraint("Vertical", 19, 3, 85, 3),
    Sketcher.Constraint("Vertical", 17, 3, 87, 3),
    Sketcher.Constraint("Vertical", 87, 3, 0, 2),
    Sketcher.Constraint("Vertical", 0, 2, 1, 1),
    Sketcher.Constraint("Vertical", 14, 2, 15, 1),
    Sketcher.Constraint("Vertical", 16, 2, 17, 1),
    Sketcher.Constraint("Vertical", 61, 3, 41, 2),
    Sketcher.Constraint("Vertical", 42, 2, 43, 1),
    Sketcher.Constraint("Vertical", 44, 2, 45, 1),
    Sketcher.Constraint("Vertical", 58, 2, 59, 1),
    Sketcher.Constraint("Equal", 24, 36),
    Sketcher.Constraint("Equal", 22, 38),
    Sketcher.Constraint("Equal", 20, 40),
    Sketcher.Constraint("Equal", 26, 70),
    Sketcher.Constraint("Equal", 30, 74),
    Sketcher.Constraint("Equal", 34, 78),
    Sketcher.Constraint("Equal", 82, 0),
    Sketcher.Constraint("Equal", 80, 2),
    Sketcher.Constraint("Equal", 70, 4),
    Sketcher.Constraint("Equal", 74, 8),
    Sketcher.Constraint("Equal", 78, 12),
    Sketcher.Constraint("Equal", 2, 14),
    Sketcher.Constraint("Equal", 0, 16),
    Sketcher.Constraint("Equal", 84, 18),
    Sketcher.Constraint("Equal", 4, 48),
    Sketcher.Constraint("Equal", 8, 52),
    Sketcher.Constraint("Equal", 12, 56),
    Sketcher.Constraint("Equal", 42, 62),
    Sketcher.Constraint("Equal", 6, 28),
    Sketcher.Constraint("Equal", 10, 32),
    Sketcher.Constraint("Equal", 28, 50),
    Sketcher.Constraint("Equal", 32, 54),
    Sketcher.Constraint("Equal", 50, 72),
    Sketcher.Constraint("Equal", 54, 76),
    Sketcher.Constraint("Radius", 1, Q("0.02 in")),
    Sketcher.Constraint("Diameter", 88, Q("0.205 in")),
    Sketcher.Constraint("Radius", 7, Q("0.125 in")),
    Sketcher.Constraint("Radius", 19, Q("0.083 in")),
    Sketcher.Constraint("Radius", 3, Q("0.0435 in")),
    Sketcher.Constraint("DistanceX", 20, 2, 20, 1, Q("0.001 in")),
    Sketcher.Constraint("DistanceX", 22, 2, 22, 1, Q("0.116 in")),
    Sketcher.Constraint("DistanceX", 24, 2, 24, 1, Q("0.0485 in")),
    Sketcher.Constraint("Radius", 5, Q("1.060563 mm")),
    Sketcher.Constraint("DistanceX", 26, 1, 26, 2, Q("2.048849 mm")),
    Sketcher.Constraint("DistanceX", 34, 1, 34, 2, Q("2.042429 mm")),
    Sketcher.Constraint("DistanceY", -1, 1, 29, 3, Q("596.520201 mm")),
    Sketcher.Constraint("DistanceX", -1, 1, 51, 3, Q("792.6596 mm")),
    Sketcher.Constraint("Distance", 10, Q("4.643941 mm")),
    Sketcher.Constraint("DistanceX", 30, 2, 30, 1, Q("3.252407 mm")),
    Sketcher.Constraint("DistanceX", -1, 1, 5, 3, Q("809.769222 mm")),
    Sketcher.Constraint("DistanceY", -1, 1, 7, 3, Q("587.214661 mm")),
    Sketcher.Constraint("DistanceY", -1, 1, 11, 3, Q("595.209761 mm")),
    Sketcher.Constraint("DistanceY", -1, 1, 27, 3, Q("598.271069 mm")),
    Sketcher.Constraint("DistanceX", -1, 1, 29, 3, Q("801.965139 mm")),
    Sketcher.Constraint("DistanceX", -1, 1, 33, 3, Q("793.97004 mm")),
    Sketcher.Constraint("DistanceX", -1, 1, 49, 3, Q("790.908732 mm")),
    Sketcher.Constraint("DistanceY", -1, 1, 49, 3, Q("595.209861 mm")),
    Sketcher.Constraint("DistanceY", -1, 1, 53, 3, Q("587.214579 mm")),
    Sketcher.Constraint("DistanceX", -1, 1, 71, 3, Q("793.96994 mm")),
    Sketcher.Constraint("DistanceY", -1, 1, 71, 3, Q("579.410579 mm")),
    Sketcher.Constraint("DistanceX", -1, 1, 75, 3, Q("801.965221 mm")),
    Sketcher.Constraint("DistanceX", -1, 1, 5, 1, Q("809.057341 mm")),
    Sketcher.Constraint("DistanceX", -1, 1, 88, 3, Q("800.338977 mm")),
    Sketcher.Constraint("DistanceY", -1, 1, 88, 3, Q("588.840824 mm")),
])
pad1 = body.newObject("PartDesign::Pad", "Pad")
pad1.Profile = sketch1
pad1.Length = Q("1 in")
pad1.Reversed = True

doc.recompute()
